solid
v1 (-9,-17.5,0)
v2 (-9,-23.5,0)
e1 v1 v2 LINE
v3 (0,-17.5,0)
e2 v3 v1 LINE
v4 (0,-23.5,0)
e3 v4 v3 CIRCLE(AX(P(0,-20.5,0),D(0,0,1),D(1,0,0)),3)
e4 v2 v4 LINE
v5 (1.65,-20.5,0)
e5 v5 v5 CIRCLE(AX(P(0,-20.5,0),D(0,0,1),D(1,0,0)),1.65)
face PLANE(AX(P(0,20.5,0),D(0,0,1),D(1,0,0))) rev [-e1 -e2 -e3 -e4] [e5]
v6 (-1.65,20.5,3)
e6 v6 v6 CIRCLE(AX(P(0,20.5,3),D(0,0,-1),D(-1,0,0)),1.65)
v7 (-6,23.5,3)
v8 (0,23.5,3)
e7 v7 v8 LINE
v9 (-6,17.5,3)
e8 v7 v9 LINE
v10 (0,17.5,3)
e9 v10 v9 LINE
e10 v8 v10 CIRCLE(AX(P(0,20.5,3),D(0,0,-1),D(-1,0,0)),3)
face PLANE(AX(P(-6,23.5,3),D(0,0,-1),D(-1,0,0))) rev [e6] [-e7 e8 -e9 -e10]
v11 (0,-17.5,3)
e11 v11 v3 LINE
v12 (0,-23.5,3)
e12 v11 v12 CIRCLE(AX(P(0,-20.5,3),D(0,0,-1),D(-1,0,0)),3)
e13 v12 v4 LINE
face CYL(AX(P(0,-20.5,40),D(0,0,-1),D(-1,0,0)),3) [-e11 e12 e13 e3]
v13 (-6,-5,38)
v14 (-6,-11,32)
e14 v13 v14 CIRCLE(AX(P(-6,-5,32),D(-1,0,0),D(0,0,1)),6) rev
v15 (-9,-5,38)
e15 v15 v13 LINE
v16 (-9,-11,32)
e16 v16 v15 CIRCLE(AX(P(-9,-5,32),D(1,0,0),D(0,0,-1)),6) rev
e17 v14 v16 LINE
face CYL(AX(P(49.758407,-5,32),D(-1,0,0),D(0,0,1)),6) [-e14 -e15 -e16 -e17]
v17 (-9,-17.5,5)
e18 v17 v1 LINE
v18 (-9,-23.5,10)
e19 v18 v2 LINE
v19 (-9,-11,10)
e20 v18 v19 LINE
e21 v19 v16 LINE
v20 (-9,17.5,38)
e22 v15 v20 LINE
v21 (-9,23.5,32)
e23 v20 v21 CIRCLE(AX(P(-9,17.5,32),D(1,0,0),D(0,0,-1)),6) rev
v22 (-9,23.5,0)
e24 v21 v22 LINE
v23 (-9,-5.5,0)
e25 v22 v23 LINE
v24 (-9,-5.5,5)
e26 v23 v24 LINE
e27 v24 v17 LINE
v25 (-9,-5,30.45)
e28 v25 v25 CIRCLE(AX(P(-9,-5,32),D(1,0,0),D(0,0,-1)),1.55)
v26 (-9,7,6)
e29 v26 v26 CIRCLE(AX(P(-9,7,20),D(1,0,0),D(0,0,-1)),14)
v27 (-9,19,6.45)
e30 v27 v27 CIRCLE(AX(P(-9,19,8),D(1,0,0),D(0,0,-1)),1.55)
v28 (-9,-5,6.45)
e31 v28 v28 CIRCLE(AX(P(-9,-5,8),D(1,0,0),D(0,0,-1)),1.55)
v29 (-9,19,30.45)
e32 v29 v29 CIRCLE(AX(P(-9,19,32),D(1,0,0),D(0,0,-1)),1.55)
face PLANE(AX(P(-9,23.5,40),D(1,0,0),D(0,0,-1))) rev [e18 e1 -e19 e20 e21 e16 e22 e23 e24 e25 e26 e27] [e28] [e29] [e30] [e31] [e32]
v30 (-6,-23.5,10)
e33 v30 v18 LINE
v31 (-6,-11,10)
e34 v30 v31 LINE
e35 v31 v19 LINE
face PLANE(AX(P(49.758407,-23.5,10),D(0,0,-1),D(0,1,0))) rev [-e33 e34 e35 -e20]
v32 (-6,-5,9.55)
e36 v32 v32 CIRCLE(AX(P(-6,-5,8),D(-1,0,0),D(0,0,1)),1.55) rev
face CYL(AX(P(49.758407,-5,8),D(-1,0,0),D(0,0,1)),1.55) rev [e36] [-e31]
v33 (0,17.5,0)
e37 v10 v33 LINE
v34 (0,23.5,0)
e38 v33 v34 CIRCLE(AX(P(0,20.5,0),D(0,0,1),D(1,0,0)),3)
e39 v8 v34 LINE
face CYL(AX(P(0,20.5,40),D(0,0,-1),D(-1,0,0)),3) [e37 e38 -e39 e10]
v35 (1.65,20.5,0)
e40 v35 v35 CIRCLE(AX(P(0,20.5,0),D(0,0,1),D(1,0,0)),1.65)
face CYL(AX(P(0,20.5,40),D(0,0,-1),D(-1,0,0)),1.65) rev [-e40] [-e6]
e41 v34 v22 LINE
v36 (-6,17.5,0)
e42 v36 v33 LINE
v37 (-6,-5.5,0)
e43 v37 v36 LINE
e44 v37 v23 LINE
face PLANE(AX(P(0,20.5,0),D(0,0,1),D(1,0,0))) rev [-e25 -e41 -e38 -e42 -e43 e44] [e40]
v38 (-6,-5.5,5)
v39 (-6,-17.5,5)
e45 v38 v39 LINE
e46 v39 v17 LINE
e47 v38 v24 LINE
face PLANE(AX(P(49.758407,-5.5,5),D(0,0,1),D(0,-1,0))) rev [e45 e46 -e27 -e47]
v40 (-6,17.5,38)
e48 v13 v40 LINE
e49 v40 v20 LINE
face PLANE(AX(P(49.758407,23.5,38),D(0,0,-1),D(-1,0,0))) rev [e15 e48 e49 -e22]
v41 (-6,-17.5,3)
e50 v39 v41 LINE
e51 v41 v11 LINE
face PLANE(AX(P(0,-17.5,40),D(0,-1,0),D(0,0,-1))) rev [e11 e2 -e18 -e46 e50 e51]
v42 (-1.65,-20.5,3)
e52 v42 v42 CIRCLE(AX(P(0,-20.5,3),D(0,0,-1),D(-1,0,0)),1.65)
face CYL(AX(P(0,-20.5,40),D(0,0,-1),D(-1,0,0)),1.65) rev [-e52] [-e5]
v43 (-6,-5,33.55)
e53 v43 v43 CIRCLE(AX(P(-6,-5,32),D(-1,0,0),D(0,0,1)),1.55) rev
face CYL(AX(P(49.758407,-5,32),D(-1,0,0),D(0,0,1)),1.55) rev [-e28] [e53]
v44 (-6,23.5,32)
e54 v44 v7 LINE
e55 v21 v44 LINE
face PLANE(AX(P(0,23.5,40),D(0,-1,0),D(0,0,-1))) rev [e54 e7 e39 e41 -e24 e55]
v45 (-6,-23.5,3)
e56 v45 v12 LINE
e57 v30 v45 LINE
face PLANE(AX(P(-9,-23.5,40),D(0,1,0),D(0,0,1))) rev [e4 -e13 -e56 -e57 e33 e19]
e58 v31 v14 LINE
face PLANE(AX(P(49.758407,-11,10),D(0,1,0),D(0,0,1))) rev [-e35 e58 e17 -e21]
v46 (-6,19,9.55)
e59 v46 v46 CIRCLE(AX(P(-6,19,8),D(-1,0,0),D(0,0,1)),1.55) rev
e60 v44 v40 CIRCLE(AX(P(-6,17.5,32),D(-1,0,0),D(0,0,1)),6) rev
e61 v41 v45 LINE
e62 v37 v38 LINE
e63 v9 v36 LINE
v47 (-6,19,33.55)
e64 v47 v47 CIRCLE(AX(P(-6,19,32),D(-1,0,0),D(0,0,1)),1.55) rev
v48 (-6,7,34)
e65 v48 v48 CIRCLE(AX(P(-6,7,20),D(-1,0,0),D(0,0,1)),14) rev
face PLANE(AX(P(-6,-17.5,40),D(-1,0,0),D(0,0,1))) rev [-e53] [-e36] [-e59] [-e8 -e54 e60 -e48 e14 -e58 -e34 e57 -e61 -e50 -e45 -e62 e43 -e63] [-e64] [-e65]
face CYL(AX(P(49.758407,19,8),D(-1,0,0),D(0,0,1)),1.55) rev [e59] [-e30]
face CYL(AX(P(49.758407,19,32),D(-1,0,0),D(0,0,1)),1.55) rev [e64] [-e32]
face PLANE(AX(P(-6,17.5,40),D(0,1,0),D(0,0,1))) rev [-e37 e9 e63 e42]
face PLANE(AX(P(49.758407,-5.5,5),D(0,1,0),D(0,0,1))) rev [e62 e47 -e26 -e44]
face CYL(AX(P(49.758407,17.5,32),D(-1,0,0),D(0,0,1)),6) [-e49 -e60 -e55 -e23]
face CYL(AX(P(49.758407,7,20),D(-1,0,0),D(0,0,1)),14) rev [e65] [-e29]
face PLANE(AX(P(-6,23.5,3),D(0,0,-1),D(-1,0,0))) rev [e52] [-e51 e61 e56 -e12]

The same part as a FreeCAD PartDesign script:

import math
import FreeCAD as App
import Part
import Sketcher
from FreeCAD import Vector


def edges_at(feature, points):
    """Names of the edges that pass closest to the given points."""
    edges = feature.Shape.Edges
    near = lambda p: min(range(len(edges)), key=lambda i: edges[i].distToShape(Part.Vertex(*p))[0])
    return sorted({f"Edge{near(p) + 1}" for p in points})

doc = App.newDocument("Part")
body = doc.addObject("PartDesign::Body", "Body")

sketch1 = doc.addObject("Sketcher::SketchObject", "Sketch")
body.addObject(sketch1)
sketch1.AttachmentSupport = (doc.XY_Plane, [""])
sketch1.MapMode = "FlatFace"
sketch1.addGeometry(Part.LineSegment(Vector(0, 23.5, 0), Vector(-9, 23.5, 0)), False)
sketch1.addGeometry(Part.LineSegment(Vector(-9, 23.5, 0), Vector(-9, -23.5, 0)), False)
sketch1.addGeometry(Part.LineSegment(Vector(-9, -23.5, 0), Vector(0, -23.5, 0)), False)
sketch1.addGeometry(Part.ArcOfCircle(Part.Circle(Vector(0, -20.5, 0), Vector(0, 0, 1), 3), math.radians(-90), math.radians(90)), False)
sketch1.addGeometry(Part.LineSegment(Vector(0, -17.5, 0), Vector(-6, -17.5, 0)), False)
sketch1.addGeometry(Part.LineSegment(Vector(-6, -17.5, 0), Vector(-6, 17.5, 0)), False)
sketch1.addGeometry(Part.LineSegment(Vector(-6, 17.5, 0), Vector(0, 17.5, 0)), False)
sketch1.addGeometry(Part.ArcOfCircle(Part.Circle(Vector(0, 20.5, 0), Vector(0, 0, 1), 3), math.radians(-90), math.radians(90)), False)
sketch1.addGeometry(Part.Circle(Vector(0, -20.5, 0), Vector(0, 0, 1), 1.65), False)
sketch1.addGeometry(Part.Circle(Vector(0, 20.5, 0), Vector(0, 0, 1), 1.65), False)
sketch1.addConstraint(Sketcher.Constraint("Coincident", 0, 2, 1, 1))
sketch1.addConstraint(Sketcher.Constraint("Coincident", 1, 2, 2, 1))
sketch1.addConstraint(Sketcher.Constraint("Tangent", 2, 2, 3, 1))
sketch1.addConstraint(Sketcher.Constraint("Tangent", 3, 2, 4, 1))
sketch1.addConstraint(Sketcher.Constraint("Coincident", 4, 2, 5, 1))
sketch1.addConstraint(Sketcher.Constraint("Coincident", 5, 2, 6, 1))
sketch1.addConstraint(Sketcher.Constraint("Tangent", 6, 2, 7, 1))
sketch1.addConstraint(Sketcher.Constraint("Tangent", 7, 2, 0, 1))
sketch1.addConstraint(Sketcher.Constraint("Horizontal", 0))
sketch1.addConstraint(Sketcher.Constraint("Vertical", 1))
sketch1.addConstraint(Sketcher.Constraint("Horizontal", 2))
sketch1.addConstraint(Sketcher.Constraint("Horizontal", 4))
sketch1.addConstraint(Sketcher.Constraint("Vertical", 5))
sketch1.addConstraint(Sketcher.Constraint("Horizontal", 6))
sketch1.addConstraint(Sketcher.Constraint("Coincident", 8, 3, 3, 3))
sketch1.addConstraint(Sketcher.Constraint("Coincident", 9, 3, 7, 3))
sketch1.addConstraint(Sketcher.Constraint("Equal", 3, 7))
sketch1.addConstraint(Sketcher.Constraint("Equal", 8, 9))
sketch1.addConstraint(Sketcher.Constraint("Symmetric", 3, 3, 7, 3, -1, 1))
sketch1.addConstraint(Sketcher.Constraint("PointOnObject", 3, 3, -2))
sketch1.addConstraint(Sketcher.Constraint("Radius", 3, 3.0))
sketch1.addConstraint(Sketcher.Constraint("Diameter", 8, 3.3))
sketch1.addConstraint(Sketcher.Constraint("DistanceX", 0, 2, 0, 1, 9.0))
sketch1.addConstraint(Sketcher.Constraint("DistanceX", 4, 2, 4, 1, 6.0))
sketch1.addConstraint(Sketcher.Constraint("DistanceY", 1, 2, 1, 1, 47.0))
pad1 = doc.addObject("PartDesign::Pad", "Pad")
body.addObject(pad1)
pad1.Profile = sketch1
pad1.Length = 40

sketch2 = doc.addObject("Sketcher::SketchObject", "Sketch001")
body.addObject(sketch2)
sketch2.AttachmentSupport = (doc.XZ_Plane, [""])
sketch2.MapMode = "FlatFace"
sketch2.AttachmentOffset = App.Placement(Vector(0, 0, 23.5), App.Rotation())
sketch2.addGeometry(Part.LineSegment(Vector(-6, 40, 0), Vector(-6, 3, 0)), False)
sketch2.addGeometry(Part.LineSegment(Vector(-6, 3, 0), Vector(3, 3, 0)), False)
sketch2.addGeometry(Part.LineSegment(Vector(3, 3, 0), Vector(3, 40, 0)), False)
sketch2.addGeometry(Part.LineSegment(Vector(3, 40, 0), Vector(-6, 40, 0)), False)
sketch2.addConstraint(Sketcher.Constraint("Coincident", 0, 2, 1, 1))
sketch2.addConstraint(Sketcher.Constraint("Coincident", 1, 2, 2, 1))
sketch2.addConstraint(Sketcher.Constraint("Coincident", 2, 2, 3, 1))
sketch2.addConstraint(Sketcher.Constraint("Coincident", 3, 2, 0, 1))
sketch2.addConstraint(Sketcher.Constraint("Vertical", 0))
sketch2.addConstraint(Sketcher.Constraint("Horizontal", 1))
sketch2.addConstraint(Sketcher.Constraint("Vertical", 2))
sketch2.addConstraint(Sketcher.Constraint("Horizontal", 3))
sketch2.addConstraint(Sketcher.Constraint("DistanceX", 1, 1, 1, 2, 9.0))
sketch2.addConstraint(Sketcher.Constraint("DistanceY", 0, 2, 0, 1, 37.0))
sketch2.addConstraint(Sketcher.Constraint("DistanceX", 0, 2, -1, 1, 6.0))
sketch2.addConstraint(Sketcher.Constraint("DistanceY", -1, 1, 0, 2, 3.0))
pocket1 = doc.addObject("PartDesign::Pocket", "Pocket")
body.addObject(pocket1)
pocket1.Profile = sketch2
pocket1.Type = "ThroughAll"

sketch3 = doc.addObject("Sketcher::SketchObject", "Sketch002")
body.addObject(sketch3)
sketch3.AttachmentSupport = (doc.YZ_Plane, [""])
sketch3.MapMode = "FlatFace"
sketch3.AttachmentOffset = App.Placement(Vector(0, 0, -9), App.Rotation())
sketch3.addGeometry(Part.Circle(Vector(7, 20, 0), Vector(0, 0, 1), 14), False)
sketch3.addGeometry(Part.Circle(Vector(19, 32, 0), Vector(0, 0, 1), 1.55), False)
sketch3.addGeometry(Part.Circle(Vector(-5, 32, 0), Vector(0, 0, 1), 1.55), False)
sketch3.addGeometry(Part.Circle(Vector(-5, 8, 0), Vector(0, 0, 1), 1.55), False)
sketch3.addGeometry(Part.Circle(Vector(19, 8, 0), Vector(0, 0, 1), 1.55), False)
sketch3.addGeometry(Part.LineSegment(Vector(-5.5, 0, 0), Vector(-17.5, 0, 0)), False)
sketch3.addGeometry(Part.LineSegment(Vector(-17.5, 0, 0), Vector(-17.5, 5, 0)), False)
sketch3.addGeometry(Part.LineSegment(Vector(-17.5, 5, 0), Vector(-5.5, 5, 0)), False)
sketch3.addGeometry(Part.LineSegment(Vector(-5.5, 5, 0), Vector(-5.5, 0, 0)), False)
sketch3.addGeometry(Part.LineSegment(Vector(-11, 10, 0), Vector(-23.5, 10, 0)), False)
sketch3.addGeometry(Part.LineSegment(Vector(-23.5, 10, 0), Vector(-23.5, 40, 0)), False)
sketch3.addGeometry(Part.LineSegment(Vector(-23.5, 40, 0), Vector(23.5, 40, 0)), False)
sketch3.addGeometry(Part.LineSegment(Vector(23.5, 40, 0), Vector(23.5, 38, 0)), False)
sketch3.addGeometry(Part.LineSegment(Vector(23.5, 38, 0), Vector(-11, 38, 0)), False)
sketch3.addGeometry(Part.LineSegment(Vector(-11, 38, 0), Vector(-11, 10, 0)), False)
sketch3.addConstraint(Sketcher.Constraint("Coincident", 5, 2, 6, 1))
sketch3.addConstraint(Sketcher.Constraint("Coincident", 6, 2, 7, 1))
sketch3.addConstraint(Sketcher.Constraint("Coincident", 7, 2, 8, 1))
sketch3.addConstraint(Sketcher.Constraint("Coincident", 8, 2, 5, 1))
sketch3.addConstraint(Sketcher.Constraint("Coincident", 9, 2, 10, 1))
sketch3.addConstraint(Sketcher.Constraint("Coincident", 10, 2, 11, 1))
sketch3.addConstraint(Sketcher.Constraint("Coincident", 11, 2, 12, 1))
sketch3.addConstraint(Sketcher.Constraint("Coincident", 12, 2, 13, 1))
sketch3.addConstraint(Sketcher.Constraint("Coincident", 13, 2, 14, 1))
sketch3.addConstraint(Sketcher.Constraint("Coincident", 14, 2, 9, 1))
sketch3.addConstraint(Sketcher.Constraint("Horizontal", 5))
sketch3.addConstraint(Sketcher.Constraint("Vertical", 6))
sketch3.addConstraint(Sketcher.Constraint("Horizontal", 7))
sketch3.addConstraint(Sketcher.Constraint("Vertical", 8))
sketch3.addConstraint(Sketcher.Constraint("Horizontal", 9))
sketch3.addConstraint(Sketcher.Constraint("Vertical", 10))
sketch3.addConstraint(Sketcher.Constraint("Horizontal", 11))
sketch3.addConstraint(Sketcher.Constraint("Vertical", 12))
sketch3.addConstraint(Sketcher.Constraint("Horizontal", 13))
sketch3.addConstraint(Sketcher.Constraint("Vertical", 14))
sketch3.addConstraint(Sketcher.Constraint("Equal", 1, 2))
sketch3.addConstraint(Sketcher.Constraint("Equal", 2, 3))
sketch3.addConstraint(Sketcher.Constraint("Equal", 3, 4))
sketch3.addConstraint(Sketcher.Constraint("PointOnObject", 5, 2, -1))
sketch3.addConstraint(Sketcher.Constraint("Horizontal", 1, 3, 2, 3))
sketch3.addConstraint(Sketcher.Constraint("Horizontal", 3, 3, 4, 3))
sketch3.addConstraint(Sketcher.Constraint("Vertical", 2, 3, 3, 3))
sketch3.addConstraint(Sketcher.Constraint("Vertical", 1, 3, 4, 3))
sketch3.addConstraint(Sketcher.Constraint("Diameter", 0, 28.0))
sketch3.addConstraint(Sketcher.Constraint("Diameter", 1, 3.1))
sketch3.addConstraint(Sketcher.Constraint("DistanceX", 5, 2, 5, 1, 12.0))
sketch3.addConstraint(Sketcher.Constraint("DistanceX", 11, 1, 11, 2, 47.0))
sketch3.addConstraint(Sketcher.Constraint("DistanceY", 6, 1, 6, 2, 5.0))
sketch3.addConstraint(Sketcher.Constraint("DistanceY", 10, 1, 10, 2, 30.0))
sketch3.addConstraint(Sketcher.Constraint("DistanceY", 12, 2, 12, 1, 2.0))
sketch3.addConstraint(Sketcher.Constraint("DistanceX", 9, 2, 9, 1, 12.5))
sketch3.addConstraint(Sketcher.Constraint("DistanceX", -1, 1, 0, 3, 7.0))
sketch3.addConstraint(Sketcher.Constraint("DistanceY", -1, 1, 0, 3, 20.0))
sketch3.addConstraint(Sketcher.Constraint("DistanceX", -1, 1, 1, 3, 19.0))
sketch3.addConstraint(Sketcher.Constraint("DistanceY", -1, 1, 1, 3, 32.0))
sketch3.addConstraint(Sketcher.Constraint("DistanceX", 2, 3, -1, 1, 5.0))
sketch3.addConstraint(Sketcher.Constraint("DistanceY", -1, 1, 3, 3, 8.0))
sketch3.addConstraint(Sketcher.Constraint("DistanceY", -1, 1, 9, 2, 10.0))
sketch3.addConstraint(Sketcher.Constraint("DistanceX", 13, 2, -1, 1, 11.0))
sketch3.addConstraint(Sketcher.Constraint("DistanceX", 9, 2, 6, 2, 6.0))
pocket2 = doc.addObject("PartDesign::Pocket", "Pocket001")
body.addObject(pocket2)
pocket2.Profile = sketch3
pocket2.Type = "ThroughAll"
pocket2.Midplane = True
doc.recompute()

fillet = doc.addObject("PartDesign::Fillet", "Fillet")
body.addObject(fillet)
fillet.Base = (pocket2, edges_at(pocket2, [(-7.5, -11, 38), (-7.5, 23.5, 38)]))
fillet.Radius = 6

doc.recompute()
